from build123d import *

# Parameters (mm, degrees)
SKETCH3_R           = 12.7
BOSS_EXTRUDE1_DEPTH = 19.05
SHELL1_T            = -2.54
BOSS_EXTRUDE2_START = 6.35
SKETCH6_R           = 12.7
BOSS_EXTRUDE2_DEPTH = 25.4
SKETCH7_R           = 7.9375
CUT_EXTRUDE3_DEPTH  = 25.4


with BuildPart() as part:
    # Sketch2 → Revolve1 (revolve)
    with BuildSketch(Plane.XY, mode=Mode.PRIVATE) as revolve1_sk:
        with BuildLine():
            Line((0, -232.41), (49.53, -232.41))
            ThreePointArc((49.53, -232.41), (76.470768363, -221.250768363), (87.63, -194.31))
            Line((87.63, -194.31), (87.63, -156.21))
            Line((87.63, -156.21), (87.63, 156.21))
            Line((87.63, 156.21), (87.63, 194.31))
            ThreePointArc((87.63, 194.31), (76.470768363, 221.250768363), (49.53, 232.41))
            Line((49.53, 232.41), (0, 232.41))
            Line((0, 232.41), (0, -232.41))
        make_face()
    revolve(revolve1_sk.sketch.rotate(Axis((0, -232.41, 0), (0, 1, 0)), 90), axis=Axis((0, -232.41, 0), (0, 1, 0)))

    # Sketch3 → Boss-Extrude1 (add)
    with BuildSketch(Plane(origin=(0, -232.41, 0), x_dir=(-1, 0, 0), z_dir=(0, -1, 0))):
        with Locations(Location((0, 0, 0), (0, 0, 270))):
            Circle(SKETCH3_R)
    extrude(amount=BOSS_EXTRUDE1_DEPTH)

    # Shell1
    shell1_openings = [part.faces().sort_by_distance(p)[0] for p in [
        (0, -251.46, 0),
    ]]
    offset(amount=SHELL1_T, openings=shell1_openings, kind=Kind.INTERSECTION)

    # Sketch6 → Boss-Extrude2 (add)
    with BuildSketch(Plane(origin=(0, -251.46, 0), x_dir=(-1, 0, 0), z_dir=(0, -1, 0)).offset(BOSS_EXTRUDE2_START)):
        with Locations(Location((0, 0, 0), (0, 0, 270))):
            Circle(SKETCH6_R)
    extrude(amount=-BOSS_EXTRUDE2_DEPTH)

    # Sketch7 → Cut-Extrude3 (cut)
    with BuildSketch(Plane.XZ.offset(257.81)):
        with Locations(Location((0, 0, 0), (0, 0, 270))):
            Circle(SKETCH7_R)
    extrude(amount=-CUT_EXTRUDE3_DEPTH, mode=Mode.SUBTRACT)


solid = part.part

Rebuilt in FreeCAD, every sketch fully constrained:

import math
import FreeCAD as App
import Part
import Sketcher
Q = App.Units.Quantity


def faces_at(feature, points):
    """Names of the faces that lie closest to the given points."""
    faces = feature.Shape.Faces
    near = lambda p: min(range(len(faces)), key=lambda i: faces[i].distToShape(Part.Vertex(*p))[0])
    return sorted({f"Face{near(p) + 1}" for p in points})

doc = App.newDocument("Part")
body = doc.addObject("PartDesign::Body", "Body")

# Sketch on XY plane
sketch1 = body.newObject("Sketcher::SketchObject", "Sketch")
sketch1.AttachmentSupport = (doc.getObject("XY_Plane"), [""])
sketch1.MapMode = "FlatFace"
sketch1.addGeometry([
    Part.LineSegment(App.Vector(0, -232, 0), App.Vector(50, -232, 0)),  # 0
    Part.ArcOfCircle(Part.Circle(App.Vector(50, -194, 0), App.Vector(0, 0, 1), 38), math.radians(-90), math.radians(0)),  # 1
    Part.LineSegment(App.Vector(88, -194, 0), App.Vector(88, 194, 0)),  # 2
    Part.ArcOfCircle(Part.Circle(App.Vector(50, 194, 0), App.Vector(0, 0, 1), 38), math.radians(0), math.radians(90)),  # 3
    Part.LineSegment(App.Vector(50, 232, 0), App.Vector(0, 232, 0)),  # 4
    Part.LineSegment(App.Vector(0, 232, 0), App.Vector(0, -232, 0)),  # 5
], False)
sketch1.addConstraint([
    Sketcher.Constraint("Tangent", 0, 2, 1, 1),
    Sketcher.Constraint("Tangent", 1, 2, 2, 1),
    Sketcher.Constraint("Tangent", 2, 2, 3, 1),
    Sketcher.Constraint("Tangent", 3, 2, 4, 1),
    Sketcher.Constraint("Coincident", 4, 2, 5, 1),
    Sketcher.Constraint("Coincident", 5, 2, 0, 1),
    Sketcher.Constraint("Horizontal", 0),
    Sketcher.Constraint("Vertical", 2),
    Sketcher.Constraint("Horizontal", 4),
    Sketcher.Constraint("Vertical", 5),
    Sketcher.Constraint("Equal", 1, 3),
    Sketcher.Constraint("Symmetric", 4, 2, 5, 2, -1, 1),
    Sketcher.Constraint("Radius", 1, Q("1.5 in")),
    Sketcher.Constraint("DistanceY", 2, 1, 2, 2, Q("15.3 in")),
    Sketcher.Constraint("DistanceX", 0, 1, 0, 2, Q("1.95 in")),
])
revolution = body.newObject("PartDesign::Revolution", "Revolution")
revolution.Profile = sketch1
revolution.ReferenceAxis = (sketch1, ["V_Axis"])
revolution.Angle = 360

# Sketch on XZ plane
sketch2 = body.newObject("Sketcher::SketchObject", "Sketch001")
sketch2.AttachmentSupport = (doc.getObject("XZ_Plane"), [""])
sketch2.MapMode = "FlatFace"
sketch2.AttachmentOffset = App.Placement(App.Vector(0, 0, 9.15 * 25.4), App.Rotation())
sketch2.addGeometry(Part.Circle(App.Vector(0, 0, 0), App.Vector(0, 0, 1), 13), False)
sketch2.addConstraint([
    Sketcher.Constraint("Coincident", 0, 3, -1, 1),
    Sketcher.Constraint("Diameter", 0, Q("1 in")),
])
pad1 = body.newObject("PartDesign::Pad", "Pad")
pad1.Profile = sketch2
pad1.Length = Q("0.75 in")
doc.recompute()

thickness = body.newObject("PartDesign::Thickness", "Thickness")
thickness.Base = (pad1, faces_at(pad1, [(0, -251.46, 0)]))
thickness.Value = Q("0.1 in")
thickness.Reversed = True
thickness.Join = "Intersection"

# Sketch on XZ plane
sketch3 = body.newObject("Sketcher::SketchObject", "Sketch002")
sketch3.AttachmentSupport = (doc.getObject("XZ_Plane"), [""])
sketch3.MapMode = "FlatFace"
sketch3.AttachmentOffset = App.Placement(App.Vector(0, 0, 10.15 * 25.4), App.Rotation())
sketch3.addGeometry(Part.Circle(App.Vector(0, 0, 0), App.Vector(0, 0, 1), 13), False)
sketch3.addConstraint([
    Sketcher.Constraint("Coincident", 0, 3, -1, 1),
    Sketcher.Constraint("Diameter", 0, Q("1 in")),
])
pad2 = body.newObject("PartDesign::Pad", "Pad001")
pad2.Profile = sketch3
pad2.Length = Q("1 in")
pad2.Reversed = True

# Sketch on XZ plane
sketch4 = body.newObject("Sketcher::SketchObject", "Sketch003")
sketch4.AttachmentSupport = (doc.getObject("XZ_Plane"), [""])
sketch4.MapMode = "FlatFace"
sketch4.AttachmentOffset = App.Placement(App.Vector(0, 0, 10.15 * 25.4), App.Rotation())
sketch4.addGeometry(Part.Circle(App.Vector(0, 0, 0), App.Vector(0, 0, 1), 8), False)
sketch4.addConstraint([
    Sketcher.Constraint("Coincident", 0, 3, -1, 1),
    Sketcher.Constraint("Diameter", 0, Q("0.625 in")),
])
pocket1 = body.newObject("PartDesign::Pocket", "Pocket")
pocket1.Profile = sketch4
pocket1.Length = Q("1 in")

doc.recompute()
